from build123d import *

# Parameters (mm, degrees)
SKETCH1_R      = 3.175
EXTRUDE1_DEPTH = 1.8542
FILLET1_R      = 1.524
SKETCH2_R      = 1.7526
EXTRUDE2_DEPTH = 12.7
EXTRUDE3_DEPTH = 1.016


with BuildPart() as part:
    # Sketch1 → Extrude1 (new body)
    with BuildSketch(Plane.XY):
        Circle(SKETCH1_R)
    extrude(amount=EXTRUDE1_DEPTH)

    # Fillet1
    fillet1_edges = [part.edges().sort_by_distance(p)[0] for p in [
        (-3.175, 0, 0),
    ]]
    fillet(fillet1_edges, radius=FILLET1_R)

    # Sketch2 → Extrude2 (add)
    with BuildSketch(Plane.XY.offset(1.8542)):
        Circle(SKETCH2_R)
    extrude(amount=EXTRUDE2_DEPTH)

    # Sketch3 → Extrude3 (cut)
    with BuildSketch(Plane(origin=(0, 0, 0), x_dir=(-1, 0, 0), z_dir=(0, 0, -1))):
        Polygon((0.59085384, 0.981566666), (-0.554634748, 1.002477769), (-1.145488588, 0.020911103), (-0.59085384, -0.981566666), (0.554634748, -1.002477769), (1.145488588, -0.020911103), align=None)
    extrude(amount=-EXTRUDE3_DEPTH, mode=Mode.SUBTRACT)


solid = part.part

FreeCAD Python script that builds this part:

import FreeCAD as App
import Part
import Sketcher
from FreeCAD import Vector
Q = App.Units.Quantity


def edges_at(feature, points):
    """Names of the edges that pass closest to the given points."""
    edges = feature.Shape.Edges
    near = lambda p: min(range(len(edges)), key=lambda i: edges[i].distToShape(Part.Vertex(*p))[0])
    return sorted({f"Edge{near(p) + 1}" for p in points})

doc = App.newDocument("Part")
body = doc.addObject("PartDesign::Body", "Body")

sketch1 = doc.addObject("Sketcher::SketchObject", "Sketch")
body.addObject(sketch1)
sketch1.AttachmentSupport = (doc.XY_Plane, [""])
sketch1.MapMode = "FlatFace"
sketch1.addGeometry(Part.Circle(Vector(0, 0, 0), Vector(0, 0, 1), 3.2), False)
sketch1.addConstraint(Sketcher.Constraint("Coincident", 0, 3, -1, 1))
sketch1.addConstraint(Sketcher.Constraint("Diameter", 0, Q("0.25 in")))
pad1 = doc.addObject("PartDesign::Pad", "Pad")
body.addObject(pad1)
pad1.Profile = sketch1
pad1.Length = Q("0.073 in")
doc.recompute()

fillet = doc.addObject("PartDesign::Fillet", "Fillet")
body.addObject(fillet)
fillet.Base = (pad1, edges_at(pad1, [(-3.175, 0, 0)]))
fillet.Radius = Q("0.06 in")

sketch2 = doc.addObject("Sketcher::SketchObject", "Sketch001")
body.addObject(sketch2)
sketch2.AttachmentSupport = (doc.XY_Plane, [""])
sketch2.MapMode = "FlatFace"
sketch2.AttachmentOffset = App.Placement(Vector(0, 0, 0.073 * 25.4), App.Rotation())
sketch2.addGeometry(Part.Circle(Vector(0, 0, 0), Vector(0, 0, 1), 1.8), False)
sketch2.addConstraint(Sketcher.Constraint("Coincident", 0, 3, -1, 1))
sketch2.addConstraint(Sketcher.Constraint("Diameter", 0, Q("0.138 in")))
pad2 = doc.addObject("PartDesign::Pad", "Pad001")
body.addObject(pad2)
pad2.Profile = sketch2
pad2.Length = Q("0.5 in")

sketch3 = doc.addObject("Sketcher::SketchObject", "Sketch002")
body.addObject(sketch3)
sketch3.AttachmentSupport = (doc.XY_Plane, [""])
sketch3.MapMode = "FlatFace"
sketch3.addGeometry(Part.LineSegment(Vector(-0.6, 1, 0), Vector(0.6, 1, 0)), False)
sketch3.addGeometry(Part.LineSegment(Vector(0.6, 1, 0), Vector(1.1, 0, 0)), False)
sketch3.addGeometry(Part.LineSegment(Vector(1.1, 0, 0), Vector(0.6, -1, 0)), False)
sketch3.addGeometry(Part.LineSegment(Vector(0.6, -1, 0), Vector(-0.6, -1, 0)), False)
sketch3.addGeometry(Part.LineSegment(Vector(-0.6, -1, 0), Vector(-1.1, 0, 0)), False)
sketch3.addGeometry(Part.LineSegment(Vector(-1.1, 0, 0), Vector(-0.6, 1, 0)), False)
sketch3.addConstraint(Sketcher.Constraint("Coincident", 0, 2, 1, 1))
sketch3.addConstraint(Sketcher.Constraint("Coincident", 1, 2, 2, 1))
sketch3.addConstraint(Sketcher.Constraint("Coincident", 2, 2, 3, 1))
sketch3.addConstraint(Sketcher.Constraint("Coincident", 3, 2, 4, 1))
sketch3.addConstraint(Sketcher.Constraint("Coincident", 4, 2, 5, 1))
sketch3.addConstraint(Sketcher.Constraint("Coincident", 5, 2, 0, 1))
sketch3.addConstraint(Sketcher.Constraint("Symmetric", 0, 2, 3, 2, -1, 1))
sketch3.addConstraint(Sketcher.Constraint("Symmetric", 1, 2, 4, 2, -1, 1))
sketch3.addConstraint(Sketcher.Constraint("Symmetric", 2, 2, 5, 2, -1, 1))
sketch3.addConstraint(Sketcher.Constraint("Equal", 0, 1))
sketch3.addConstraint(Sketcher.Constraint("Equal", 1, 2))
sketch3.addConstraint(Sketcher.Constraint("Distance", 0, 1.145679))
sketch3.addConstraint(Sketcher.Constraint("DistanceX", -1, 1, 1, 2, 1.145489))
sketch3.addConstraint(Sketcher.Constraint("DistanceY", -1, 1, 1, 2, 0.020911))
sketch3.addConstraint(Sketcher.Constraint("DistanceX", 0, 2, 2, 2, 0.036219))
pocket1 = doc.addObject("PartDesign::Pocket", "Pocket")
body.addObject(pocket1)
pocket1.Profile = sketch3
pocket1.Length = Q("0.04 in")
pocket1.Reversed = True

doc.recompute()
